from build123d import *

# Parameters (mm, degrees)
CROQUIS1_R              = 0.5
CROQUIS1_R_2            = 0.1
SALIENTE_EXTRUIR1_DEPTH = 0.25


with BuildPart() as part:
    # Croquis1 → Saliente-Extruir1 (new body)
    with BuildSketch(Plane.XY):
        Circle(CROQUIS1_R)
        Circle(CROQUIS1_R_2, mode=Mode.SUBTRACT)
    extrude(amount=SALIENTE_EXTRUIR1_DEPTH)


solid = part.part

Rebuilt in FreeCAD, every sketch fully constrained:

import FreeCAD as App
import Part
import Sketcher
Q = App.Units.Quantity

doc = App.newDocument("Part")
body = doc.addObject("PartDesign::Body", "Body")

# Sketch on XY plane
sketch1 = body.newObject("Sketcher::SketchObject", "Sketch")
sketch1.AttachmentSupport = (doc.getObject("XY_Plane"), [""])
sketch1.MapMode = "FlatFace"
sketch1.addGeometry([
    Part.Circle(App.Vector(0, 0, 0), App.Vector(0, 0, 1), 0.5),
    Part.Circle(App.Vector(0, 0, 0), App.Vector(0, 0, 1), 0.1),
], False)
sketch1.addConstraint([
    Sketcher.Constraint("Coincident", 0, 3, -1, 1),
    Sketcher.Constraint("Coincident", 1, 3, -1, 1),
    Sketcher.Constraint("Diameter", 0, Q("1 mm")),
    Sketcher.Constraint("Diameter", 1, Q("0.2 mm")),
])
pad1 = body.newObject("PartDesign::Pad", "Pad")
pad1.Profile = sketch1
pad1.Length = 0.25

doc.recompute()
